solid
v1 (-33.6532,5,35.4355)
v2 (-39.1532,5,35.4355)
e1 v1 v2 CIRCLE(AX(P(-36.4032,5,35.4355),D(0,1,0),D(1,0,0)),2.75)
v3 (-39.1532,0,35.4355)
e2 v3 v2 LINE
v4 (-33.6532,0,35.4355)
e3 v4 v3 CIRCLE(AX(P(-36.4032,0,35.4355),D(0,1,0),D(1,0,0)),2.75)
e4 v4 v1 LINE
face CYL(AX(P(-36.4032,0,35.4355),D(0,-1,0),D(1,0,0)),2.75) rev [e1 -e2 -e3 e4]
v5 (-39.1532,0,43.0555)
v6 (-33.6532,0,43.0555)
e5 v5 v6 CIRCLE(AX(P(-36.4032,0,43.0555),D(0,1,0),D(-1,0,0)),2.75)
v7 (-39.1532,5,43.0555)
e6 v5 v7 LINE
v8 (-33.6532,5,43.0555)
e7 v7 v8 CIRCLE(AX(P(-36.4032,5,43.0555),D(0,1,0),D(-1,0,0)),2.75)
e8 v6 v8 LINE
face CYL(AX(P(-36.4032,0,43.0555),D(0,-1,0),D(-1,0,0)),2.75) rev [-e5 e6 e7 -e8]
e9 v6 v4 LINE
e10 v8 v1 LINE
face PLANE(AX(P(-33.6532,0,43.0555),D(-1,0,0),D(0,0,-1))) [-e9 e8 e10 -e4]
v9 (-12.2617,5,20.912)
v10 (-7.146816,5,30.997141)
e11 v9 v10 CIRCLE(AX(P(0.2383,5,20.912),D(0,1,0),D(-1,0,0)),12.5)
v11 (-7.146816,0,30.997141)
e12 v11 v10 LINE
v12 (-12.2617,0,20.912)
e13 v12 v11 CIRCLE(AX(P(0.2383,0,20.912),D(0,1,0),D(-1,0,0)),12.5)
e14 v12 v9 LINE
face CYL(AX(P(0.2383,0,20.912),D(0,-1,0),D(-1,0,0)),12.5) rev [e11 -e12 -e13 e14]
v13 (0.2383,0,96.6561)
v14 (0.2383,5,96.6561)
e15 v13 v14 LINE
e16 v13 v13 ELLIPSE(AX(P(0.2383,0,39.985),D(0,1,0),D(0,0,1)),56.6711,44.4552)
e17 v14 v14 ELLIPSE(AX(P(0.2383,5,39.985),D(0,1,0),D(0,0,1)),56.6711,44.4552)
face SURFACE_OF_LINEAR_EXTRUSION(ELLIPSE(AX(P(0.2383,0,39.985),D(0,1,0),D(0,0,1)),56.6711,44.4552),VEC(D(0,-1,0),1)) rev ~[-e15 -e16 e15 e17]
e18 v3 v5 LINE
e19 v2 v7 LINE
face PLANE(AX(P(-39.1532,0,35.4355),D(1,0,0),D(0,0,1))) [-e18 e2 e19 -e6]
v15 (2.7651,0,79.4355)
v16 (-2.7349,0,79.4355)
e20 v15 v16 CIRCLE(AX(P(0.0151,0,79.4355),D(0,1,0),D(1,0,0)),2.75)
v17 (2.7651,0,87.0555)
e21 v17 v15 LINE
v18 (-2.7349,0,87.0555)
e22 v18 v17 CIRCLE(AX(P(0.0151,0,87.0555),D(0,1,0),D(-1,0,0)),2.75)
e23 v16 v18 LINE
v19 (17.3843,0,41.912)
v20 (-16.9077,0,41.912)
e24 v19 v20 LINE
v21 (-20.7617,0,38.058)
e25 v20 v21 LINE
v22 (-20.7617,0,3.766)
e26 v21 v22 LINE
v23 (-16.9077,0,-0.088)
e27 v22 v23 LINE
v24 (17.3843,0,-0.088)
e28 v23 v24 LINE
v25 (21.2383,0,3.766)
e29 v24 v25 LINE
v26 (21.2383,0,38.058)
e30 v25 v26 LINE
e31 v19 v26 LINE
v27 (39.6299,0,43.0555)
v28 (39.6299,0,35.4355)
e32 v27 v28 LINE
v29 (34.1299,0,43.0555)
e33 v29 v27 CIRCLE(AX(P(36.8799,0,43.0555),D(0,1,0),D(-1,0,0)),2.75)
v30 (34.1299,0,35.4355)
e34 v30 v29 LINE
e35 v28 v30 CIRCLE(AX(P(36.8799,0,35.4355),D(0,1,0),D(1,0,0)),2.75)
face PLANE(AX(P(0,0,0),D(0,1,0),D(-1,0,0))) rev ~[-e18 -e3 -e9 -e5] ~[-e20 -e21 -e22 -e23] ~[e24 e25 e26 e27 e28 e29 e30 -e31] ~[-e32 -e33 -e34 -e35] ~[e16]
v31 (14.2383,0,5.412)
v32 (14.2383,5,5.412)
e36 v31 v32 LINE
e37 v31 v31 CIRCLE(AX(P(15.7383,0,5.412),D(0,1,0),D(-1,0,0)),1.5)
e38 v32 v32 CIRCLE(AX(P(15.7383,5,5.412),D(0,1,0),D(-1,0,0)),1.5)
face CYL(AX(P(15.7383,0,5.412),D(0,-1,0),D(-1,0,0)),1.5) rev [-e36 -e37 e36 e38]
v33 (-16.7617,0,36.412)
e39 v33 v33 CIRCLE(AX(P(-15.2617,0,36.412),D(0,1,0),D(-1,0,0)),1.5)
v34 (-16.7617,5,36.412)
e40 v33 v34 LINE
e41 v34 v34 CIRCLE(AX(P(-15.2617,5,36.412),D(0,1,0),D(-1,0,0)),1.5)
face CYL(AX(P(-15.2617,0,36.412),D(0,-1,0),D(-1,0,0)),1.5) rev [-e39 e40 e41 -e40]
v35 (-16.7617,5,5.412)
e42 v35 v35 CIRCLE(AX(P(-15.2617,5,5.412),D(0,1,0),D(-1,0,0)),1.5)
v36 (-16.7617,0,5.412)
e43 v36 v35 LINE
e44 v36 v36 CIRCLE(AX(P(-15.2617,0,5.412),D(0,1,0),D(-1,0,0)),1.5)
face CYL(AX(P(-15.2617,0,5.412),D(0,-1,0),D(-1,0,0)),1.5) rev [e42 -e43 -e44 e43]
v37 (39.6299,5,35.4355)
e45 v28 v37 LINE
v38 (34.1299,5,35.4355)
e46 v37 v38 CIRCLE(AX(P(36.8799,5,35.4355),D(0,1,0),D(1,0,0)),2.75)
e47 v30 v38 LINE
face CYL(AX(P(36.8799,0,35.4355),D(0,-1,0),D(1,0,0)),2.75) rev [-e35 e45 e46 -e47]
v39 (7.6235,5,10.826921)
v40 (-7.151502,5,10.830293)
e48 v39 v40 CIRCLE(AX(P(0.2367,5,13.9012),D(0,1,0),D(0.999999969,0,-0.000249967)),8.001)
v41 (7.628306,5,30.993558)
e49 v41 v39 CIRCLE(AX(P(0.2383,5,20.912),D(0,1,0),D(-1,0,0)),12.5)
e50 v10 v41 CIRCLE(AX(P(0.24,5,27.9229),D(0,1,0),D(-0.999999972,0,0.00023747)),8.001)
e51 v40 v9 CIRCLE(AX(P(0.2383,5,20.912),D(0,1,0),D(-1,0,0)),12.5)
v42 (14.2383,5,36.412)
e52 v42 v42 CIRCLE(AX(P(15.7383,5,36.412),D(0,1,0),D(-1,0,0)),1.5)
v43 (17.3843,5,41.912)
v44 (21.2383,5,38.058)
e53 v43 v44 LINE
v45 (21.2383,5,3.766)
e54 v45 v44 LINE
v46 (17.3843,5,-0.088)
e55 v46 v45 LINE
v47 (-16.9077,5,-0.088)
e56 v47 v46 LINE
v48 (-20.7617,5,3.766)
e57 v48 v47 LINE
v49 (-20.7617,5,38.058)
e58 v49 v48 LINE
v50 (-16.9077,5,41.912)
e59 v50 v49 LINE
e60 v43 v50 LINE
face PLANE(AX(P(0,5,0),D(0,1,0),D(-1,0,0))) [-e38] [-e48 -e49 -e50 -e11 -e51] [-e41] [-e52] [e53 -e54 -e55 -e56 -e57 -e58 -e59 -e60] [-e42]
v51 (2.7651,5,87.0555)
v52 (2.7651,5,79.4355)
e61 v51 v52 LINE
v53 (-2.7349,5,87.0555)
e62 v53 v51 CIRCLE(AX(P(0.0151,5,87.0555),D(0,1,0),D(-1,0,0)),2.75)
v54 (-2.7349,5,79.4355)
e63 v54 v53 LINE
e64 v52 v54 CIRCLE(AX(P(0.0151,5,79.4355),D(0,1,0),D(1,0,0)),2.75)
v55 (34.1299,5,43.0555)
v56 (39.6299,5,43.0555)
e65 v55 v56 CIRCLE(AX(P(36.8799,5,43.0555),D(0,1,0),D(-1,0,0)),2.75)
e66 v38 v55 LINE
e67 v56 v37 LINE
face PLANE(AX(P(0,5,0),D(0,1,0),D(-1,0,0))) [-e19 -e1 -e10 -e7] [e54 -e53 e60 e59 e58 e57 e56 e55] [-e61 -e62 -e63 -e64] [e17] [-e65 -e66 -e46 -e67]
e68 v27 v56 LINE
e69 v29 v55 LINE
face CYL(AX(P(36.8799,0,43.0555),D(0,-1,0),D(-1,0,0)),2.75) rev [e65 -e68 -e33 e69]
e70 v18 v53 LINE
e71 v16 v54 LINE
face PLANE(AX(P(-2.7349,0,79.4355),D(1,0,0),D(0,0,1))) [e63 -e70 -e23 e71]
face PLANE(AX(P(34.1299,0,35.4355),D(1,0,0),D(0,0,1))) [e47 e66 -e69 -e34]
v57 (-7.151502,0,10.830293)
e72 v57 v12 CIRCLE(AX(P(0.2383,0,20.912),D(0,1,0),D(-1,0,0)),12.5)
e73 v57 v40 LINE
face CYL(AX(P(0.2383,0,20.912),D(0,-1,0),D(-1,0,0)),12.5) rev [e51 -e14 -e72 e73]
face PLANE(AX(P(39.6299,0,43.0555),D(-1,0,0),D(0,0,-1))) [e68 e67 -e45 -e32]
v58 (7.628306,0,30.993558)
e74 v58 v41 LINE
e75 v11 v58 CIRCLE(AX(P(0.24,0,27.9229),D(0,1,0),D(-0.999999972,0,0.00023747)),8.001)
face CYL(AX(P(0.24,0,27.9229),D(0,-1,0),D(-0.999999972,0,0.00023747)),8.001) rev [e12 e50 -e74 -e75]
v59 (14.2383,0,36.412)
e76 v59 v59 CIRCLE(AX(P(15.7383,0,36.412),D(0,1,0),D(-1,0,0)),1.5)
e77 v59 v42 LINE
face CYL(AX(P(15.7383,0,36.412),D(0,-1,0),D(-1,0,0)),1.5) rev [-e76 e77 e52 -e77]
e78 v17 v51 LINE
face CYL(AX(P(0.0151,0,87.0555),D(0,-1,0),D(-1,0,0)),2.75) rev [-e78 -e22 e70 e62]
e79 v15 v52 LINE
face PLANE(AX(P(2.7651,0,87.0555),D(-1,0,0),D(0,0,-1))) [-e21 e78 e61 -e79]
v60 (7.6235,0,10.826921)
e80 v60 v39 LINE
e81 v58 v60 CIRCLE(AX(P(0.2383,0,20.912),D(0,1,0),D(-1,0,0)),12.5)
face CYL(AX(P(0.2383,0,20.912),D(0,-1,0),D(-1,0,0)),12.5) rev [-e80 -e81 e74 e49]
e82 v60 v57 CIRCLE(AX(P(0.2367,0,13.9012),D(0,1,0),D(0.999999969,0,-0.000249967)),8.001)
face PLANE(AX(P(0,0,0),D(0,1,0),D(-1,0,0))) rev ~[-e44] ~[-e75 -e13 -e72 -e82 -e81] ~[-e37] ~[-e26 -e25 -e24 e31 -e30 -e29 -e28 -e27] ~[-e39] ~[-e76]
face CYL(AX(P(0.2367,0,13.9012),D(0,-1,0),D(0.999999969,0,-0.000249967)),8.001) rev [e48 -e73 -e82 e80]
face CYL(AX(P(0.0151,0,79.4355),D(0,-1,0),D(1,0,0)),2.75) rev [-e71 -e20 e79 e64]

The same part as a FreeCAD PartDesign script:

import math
import FreeCAD as App
import Part
import Sketcher

V = App.Vector

doc = App.newDocument("Part")
body = doc.addObject("PartDesign::Body", "Body")

# Sketch on XZ plane
sketch1 = doc.addObject("Sketcher::SketchObject", "Sketch")
body.addObject(sketch1)
sketch1.AttachmentSupport = (doc.XZ_Plane, [""])
sketch1.MapMode = "FlatFace"
sketch1.addGeometry(Part.Ellipse(V(0.2383, 96.6561, 0), V(-44.2169, 39.985, 0), V(0.2383, 39.985, 0)), False)
sketch1.addGeometry(Part.Circle(V(15.7383, 5.412, 0), V(0, 0, 1), 1.5), False)
sketch1.addGeometry(Part.Circle(V(15.7383, 36.412, 0), V(0, 0, 1), 1.5), False)
sketch1.addGeometry(Part.Circle(V(-15.2617, 5.412, 0), V(0, 0, 1), 1.5), False)
sketch1.addGeometry(Part.ArcOfCircle(Part.Circle(V(0.2367, 13.9012, 0), V(0, 0, 1), 8.001), math.radians(-157.42978), math.radians(-22.596372)), False)
sketch1.addGeometry(Part.ArcOfCircle(Part.Circle(V(0.2383, 20.912, 0), V(0, 0, 1), 12.5), math.radians(-53.785065), math.radians(53.757757)), False)
sketch1.addGeometry(Part.ArcOfCircle(Part.Circle(V(0.24, 27.9229, 0), V(0, 0, 1), 8.001), math.radians(22.568287), math.radians(157.403927)), False)
sketch1.addGeometry(Part.ArcOfCircle(Part.Circle(V(0.2383, 20.912, 0), V(0, 0, 1), 12.5), math.radians(126.214457), math.radians(233.758913)), False)
sketch1.addGeometry(Part.Circle(V(-15.2617, 36.412, 0), V(0, 0, 1), 1.5), False)
sketch1.addGeometry(Part.LineSegment(V(34.1299, 43.0555, 0), V(34.1299, 35.4355, 0)), False)
sketch1.addGeometry(Part.ArcOfCircle(Part.Circle(V(36.8799, 35.4355, 0), V(0, 0, 1), 2.75), math.radians(180), math.radians(360)), False)
sketch1.addGeometry(Part.LineSegment(V(39.6299, 35.4355, 0), V(39.6299, 43.0555, 0)), False)
sketch1.addGeometry(Part.ArcOfCircle(Part.Circle(V(36.8799, 43.0555, 0), V(0, 0, 1), 2.75), math.radians(0), math.radians(180)), False)
sketch1.addGeometry(Part.LineSegment(V(-39.1532, 43.0555, 0), V(-39.1532, 35.4355, 0)), False)
sketch1.addGeometry(Part.ArcOfCircle(Part.Circle(V(-36.4032, 35.4355, 0), V(0, 0, 1), 2.75), math.radians(180), math.radians(360)), False)
sketch1.addGeometry(Part.LineSegment(V(-33.6532, 35.4355, 0), V(-33.6532, 43.0555, 0)), False)
sketch1.addGeometry(Part.ArcOfCircle(Part.Circle(V(-36.4032, 43.0555, 0), V(0, 0, 1), 2.75), math.radians(0), math.radians(180)), False)
sketch1.addGeometry(Part.LineSegment(V(-2.7349, 87.0555, 0), V(-2.7349, 79.4355, 0)), False)
sketch1.addGeometry(Part.ArcOfCircle(Part.Circle(V(0.0151, 79.4355, 0), V(0, 0, 1), 2.75), math.radians(180), math.radians(360)), False)
sketch1.addGeometry(Part.LineSegment(V(2.7651, 79.4355, 0), V(2.7651, 87.0555, 0)), False)
sketch1.addGeometry(Part.ArcOfCircle(Part.Circle(V(0.0151, 87.0555, 0), V(0, 0, 1), 2.75), math.radians(0), math.radians(180)), False)
sketch1.addConstraint(Sketcher.Constraint("Block", 0))
sketch1.addConstraint(Sketcher.Constraint("Coincident", 4, 2, 5, 1))
sketch1.addConstraint(Sketcher.Constraint("Coincident", 5, 2, 6, 1))
sketch1.addConstraint(Sketcher.Constraint("Coincident", 6, 2, 7, 1))
sketch1.addConstraint(Sketcher.Constraint("Coincident", 7, 2, 4, 1))
sketch1.addConstraint(Sketcher.Constraint("Tangent", 9, 2, 10, 1))
sketch1.addConstraint(Sketcher.Constraint("Tangent", 10, 2, 11, 1))
sketch1.addConstraint(Sketcher.Constraint("Tangent", 11, 2, 12, 1))
sketch1.addConstraint(Sketcher.Constraint("Tangent", 12, 2, 9, 1))
sketch1.addConstraint(Sketcher.Constraint("Tangent", 13, 2, 14, 1))
sketch1.addConstraint(Sketcher.Constraint("Tangent", 14, 2, 15, 1))
sketch1.addConstraint(Sketcher.Constraint("Tangent", 15, 2, 16, 1))
sketch1.addConstraint(Sketcher.Constraint("Tangent", 16, 2, 13, 1))
sketch1.addConstraint(Sketcher.Constraint("Tangent", 17, 2, 18, 1))
sketch1.addConstraint(Sketcher.Constraint("Tangent", 18, 2, 19, 1))
sketch1.addConstraint(Sketcher.Constraint("Tangent", 19, 2, 20, 1))
sketch1.addConstraint(Sketcher.Constraint("Tangent", 20, 2, 17, 1))
sketch1.addConstraint(Sketcher.Constraint("Vertical", 9))
sketch1.addConstraint(Sketcher.Constraint("Vertical", 11))
sketch1.addConstraint(Sketcher.Constraint("Vertical", 13))
sketch1.addConstraint(Sketcher.Constraint("Vertical", 15))
sketch1.addConstraint(Sketcher.Constraint("Vertical", 17))
sketch1.addConstraint(Sketcher.Constraint("Vertical", 19))
sketch1.addConstraint(Sketcher.Constraint("Coincident", 7, 3, 5, 3))
sketch1.addConstraint(Sketcher.Constraint("Equal", 1, 2))
sketch1.addConstraint(Sketcher.Constraint("Equal", 2, 3))
sketch1.addConstraint(Sketcher.Constraint("Equal", 4, 6))
sketch1.addConstraint(Sketcher.Constraint("Equal", 5, 7))
sketch1.addConstraint(Sketcher.Constraint("Equal", 3, 8))
sketch1.addConstraint(Sketcher.Constraint("Equal", 12, 14))
sketch1.addConstraint(Sketcher.Constraint("Equal", 16, 18))
sketch1.addConstraint(Sketcher.Constraint("Horizontal", 1, 3, 3, 3))
sketch1.addConstraint(Sketcher.Constraint("Horizontal", 2, 3, 8, 3))
sketch1.addConstraint(Sketcher.Constraint("Horizontal", 10, 3, 14, 3))
sketch1.addConstraint(Sketcher.Constraint("Horizontal", 12, 3, 16, 3))
sketch1.addConstraint(Sketcher.Constraint("Vertical", 1, 3, 2, 3))
sketch1.addConstraint(Sketcher.Constraint("Vertical", 3, 3, 8, 3))
sketch1.addConstraint(Sketcher.Constraint("Equal", 15, 17))
sketch1.addConstraint(Sketcher.Constraint("Diameter", 1, 3.0))
sketch1.addConstraint(Sketcher.Constraint("Radius", 5, 12.5))
sketch1.addConstraint(Sketcher.Constraint("Radius", 10, 2.75))
sketch1.addConstraint(Sketcher.Constraint("Radius", 4, 8.001))
sketch1.addConstraint(Sketcher.Constraint("DistanceY", 1, 3, 2, 3, 31.0))
sketch1.addConstraint(Sketcher.Constraint("DistanceX", 3, 3, 1, 3, 31.0))
sketch1.addConstraint(Sketcher.Constraint("DistanceY", 16, 3, 20, 3, 44.0))
sketch1.addConstraint(Sketcher.Constraint("DistanceY", 9, 2, 9, 1, 7.62))
sketch1.addConstraint(Sketcher.Constraint("DistanceX", 5, 3, 1, 3, 15.5))
sketch1.addConstraint(Sketcher.Constraint("DistanceY", 1, 3, 5, 3, 15.5))
sketch1.addConstraint(Sketcher.Constraint("DistanceX", -1, 1, 6, 3, 0.24))
sketch1.addConstraint(Sketcher.Constraint("DistanceX", -1, 1, 10, 3, 36.88))
sketch1.addConstraint(Sketcher.Constraint("DistanceX", 5, 2, 2, 3, 8.11))
sketch1.addConstraint(Sketcher.Constraint("DistanceY", -1, 1, 1, 3, 5.412))
sketch1.addConstraint(Sketcher.Constraint("DistanceY", -1, 1, 6, 3, 27.923))
sketch1.addConstraint(Sketcher.Constraint("DistanceX", -1, 1, 18, 3, 0.015))
sketch1.addConstraint(Sketcher.Constraint("DistanceY", -1, 1, 4, 2, 10.827))
sketch1.addConstraint(Sketcher.Constraint("DistanceY", 7, 2, 4, 3, 3.071))
sketch1.addConstraint(Sketcher.Constraint("DistanceY", 5, 2, 9, 2, 4.442))
sketch1.addConstraint(Sketcher.Constraint("DistanceX", 14, 3, -1, 1, 36.4032))
pad1 = doc.addObject("PartDesign::Pad", "Pad")
body.addObject(pad1)
pad1.Profile = sketch1
pad1.Length = 5
pad1.Reversed = True

doc.recompute()
